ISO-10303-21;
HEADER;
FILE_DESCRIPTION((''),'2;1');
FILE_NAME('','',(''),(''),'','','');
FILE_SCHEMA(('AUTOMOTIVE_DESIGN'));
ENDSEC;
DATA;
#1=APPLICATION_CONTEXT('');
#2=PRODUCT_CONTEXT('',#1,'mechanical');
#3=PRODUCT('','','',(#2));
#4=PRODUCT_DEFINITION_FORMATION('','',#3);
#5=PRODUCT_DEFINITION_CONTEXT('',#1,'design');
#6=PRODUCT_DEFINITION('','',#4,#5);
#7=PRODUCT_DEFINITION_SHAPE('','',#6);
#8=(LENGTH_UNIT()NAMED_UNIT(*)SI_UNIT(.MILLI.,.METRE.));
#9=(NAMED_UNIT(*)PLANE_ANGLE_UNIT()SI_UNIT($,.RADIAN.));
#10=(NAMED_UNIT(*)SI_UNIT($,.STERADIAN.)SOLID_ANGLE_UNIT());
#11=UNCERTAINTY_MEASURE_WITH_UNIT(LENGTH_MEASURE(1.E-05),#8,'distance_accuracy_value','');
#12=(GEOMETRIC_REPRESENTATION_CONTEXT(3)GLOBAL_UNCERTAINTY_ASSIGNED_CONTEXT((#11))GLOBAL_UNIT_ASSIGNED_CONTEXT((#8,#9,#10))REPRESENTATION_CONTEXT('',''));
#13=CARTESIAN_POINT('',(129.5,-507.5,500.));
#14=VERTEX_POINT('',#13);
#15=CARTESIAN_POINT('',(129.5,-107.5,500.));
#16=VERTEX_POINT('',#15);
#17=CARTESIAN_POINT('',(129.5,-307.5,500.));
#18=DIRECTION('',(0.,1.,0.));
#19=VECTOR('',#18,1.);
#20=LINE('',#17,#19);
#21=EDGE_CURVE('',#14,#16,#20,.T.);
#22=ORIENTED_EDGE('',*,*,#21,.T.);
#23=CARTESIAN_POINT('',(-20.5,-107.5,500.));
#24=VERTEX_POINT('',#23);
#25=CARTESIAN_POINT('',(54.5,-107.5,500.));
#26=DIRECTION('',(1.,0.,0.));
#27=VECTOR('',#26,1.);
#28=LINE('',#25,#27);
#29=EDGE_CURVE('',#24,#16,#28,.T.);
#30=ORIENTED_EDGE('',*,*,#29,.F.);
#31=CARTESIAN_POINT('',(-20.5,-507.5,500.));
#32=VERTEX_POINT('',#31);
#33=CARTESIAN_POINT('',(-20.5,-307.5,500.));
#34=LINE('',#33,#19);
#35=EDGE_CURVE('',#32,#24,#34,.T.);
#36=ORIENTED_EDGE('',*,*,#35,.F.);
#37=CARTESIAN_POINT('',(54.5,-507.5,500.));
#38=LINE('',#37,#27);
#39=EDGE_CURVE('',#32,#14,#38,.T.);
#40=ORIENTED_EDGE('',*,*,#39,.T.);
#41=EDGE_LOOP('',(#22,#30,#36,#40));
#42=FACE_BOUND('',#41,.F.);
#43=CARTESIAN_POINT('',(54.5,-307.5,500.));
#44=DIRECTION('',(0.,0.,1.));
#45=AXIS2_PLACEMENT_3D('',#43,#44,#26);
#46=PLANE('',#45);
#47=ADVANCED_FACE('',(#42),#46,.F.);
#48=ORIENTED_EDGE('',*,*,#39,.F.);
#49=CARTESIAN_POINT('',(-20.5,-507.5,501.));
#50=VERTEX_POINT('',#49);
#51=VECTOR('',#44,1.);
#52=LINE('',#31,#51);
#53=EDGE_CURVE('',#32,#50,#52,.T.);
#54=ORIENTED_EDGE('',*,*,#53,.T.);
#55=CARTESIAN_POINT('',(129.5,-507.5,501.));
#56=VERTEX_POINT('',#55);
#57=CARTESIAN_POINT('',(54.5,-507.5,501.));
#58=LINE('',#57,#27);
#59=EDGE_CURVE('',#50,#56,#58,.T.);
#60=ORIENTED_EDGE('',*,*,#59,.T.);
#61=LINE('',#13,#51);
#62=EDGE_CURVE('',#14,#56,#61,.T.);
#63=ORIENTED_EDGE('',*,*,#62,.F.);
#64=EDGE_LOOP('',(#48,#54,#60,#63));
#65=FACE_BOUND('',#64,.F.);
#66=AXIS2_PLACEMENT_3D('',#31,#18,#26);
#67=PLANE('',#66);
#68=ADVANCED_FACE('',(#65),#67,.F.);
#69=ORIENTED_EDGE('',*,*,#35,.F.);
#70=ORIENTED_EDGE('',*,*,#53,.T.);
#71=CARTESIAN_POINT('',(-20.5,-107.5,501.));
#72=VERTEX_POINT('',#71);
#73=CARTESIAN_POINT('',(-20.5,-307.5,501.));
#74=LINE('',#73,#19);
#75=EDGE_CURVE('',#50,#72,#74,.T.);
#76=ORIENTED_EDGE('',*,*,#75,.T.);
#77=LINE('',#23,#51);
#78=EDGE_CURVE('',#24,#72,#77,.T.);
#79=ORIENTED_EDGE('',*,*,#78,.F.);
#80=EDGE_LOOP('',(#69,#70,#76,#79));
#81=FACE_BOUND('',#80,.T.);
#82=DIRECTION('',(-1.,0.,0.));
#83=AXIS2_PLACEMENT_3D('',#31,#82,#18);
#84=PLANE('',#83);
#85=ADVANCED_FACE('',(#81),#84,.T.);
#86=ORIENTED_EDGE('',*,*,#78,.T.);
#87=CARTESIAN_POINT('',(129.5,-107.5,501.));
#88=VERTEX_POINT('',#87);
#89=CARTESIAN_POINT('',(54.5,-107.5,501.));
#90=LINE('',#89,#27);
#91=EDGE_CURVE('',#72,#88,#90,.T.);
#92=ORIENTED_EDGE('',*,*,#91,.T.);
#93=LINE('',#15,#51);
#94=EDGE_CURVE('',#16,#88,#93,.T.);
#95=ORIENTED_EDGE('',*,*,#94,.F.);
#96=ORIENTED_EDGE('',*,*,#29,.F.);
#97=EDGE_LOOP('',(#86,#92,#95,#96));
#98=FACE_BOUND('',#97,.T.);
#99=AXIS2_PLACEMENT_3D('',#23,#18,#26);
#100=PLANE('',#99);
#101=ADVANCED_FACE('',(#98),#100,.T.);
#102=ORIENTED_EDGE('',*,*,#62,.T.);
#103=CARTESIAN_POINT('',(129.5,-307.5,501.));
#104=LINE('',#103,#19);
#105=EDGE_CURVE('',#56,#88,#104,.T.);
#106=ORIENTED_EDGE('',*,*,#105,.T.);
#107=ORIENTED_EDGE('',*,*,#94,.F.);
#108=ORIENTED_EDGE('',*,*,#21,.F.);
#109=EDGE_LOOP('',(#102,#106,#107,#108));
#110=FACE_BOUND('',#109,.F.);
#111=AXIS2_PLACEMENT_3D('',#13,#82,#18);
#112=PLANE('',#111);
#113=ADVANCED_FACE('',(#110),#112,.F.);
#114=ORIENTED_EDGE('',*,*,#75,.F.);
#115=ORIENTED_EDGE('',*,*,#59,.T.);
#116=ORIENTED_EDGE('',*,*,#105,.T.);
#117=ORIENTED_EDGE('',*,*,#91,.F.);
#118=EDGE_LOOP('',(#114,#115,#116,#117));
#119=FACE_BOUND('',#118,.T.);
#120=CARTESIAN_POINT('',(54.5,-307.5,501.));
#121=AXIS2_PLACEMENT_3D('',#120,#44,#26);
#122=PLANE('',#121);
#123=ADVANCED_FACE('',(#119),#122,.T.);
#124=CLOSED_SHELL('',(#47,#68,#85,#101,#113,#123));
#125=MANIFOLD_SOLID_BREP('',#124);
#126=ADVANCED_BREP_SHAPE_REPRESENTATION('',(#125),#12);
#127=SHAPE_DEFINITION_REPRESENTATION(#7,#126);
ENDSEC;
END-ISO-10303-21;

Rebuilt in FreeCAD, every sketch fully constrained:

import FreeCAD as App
import Part
import Sketcher

V = App.Vector
Q = App.Units.Quantity

doc = App.newDocument("Part")
body = doc.addObject("PartDesign::Body", "Body")

# Sketch on XY plane
sketch1 = body.newObject("Sketcher::SketchObject", "Sketch")
sketch1.AttachmentSupport = (doc.getObject("XY_Plane"), [""])
sketch1.MapMode = "FlatFace"
sketch1.addGeometry([
    Part.LineSegment(V(0, 400, 0), V(0, 0, 0)),
    Part.LineSegment(V(0, 0, 0), V(150, 0, 0)),
    Part.LineSegment(V(150, 0, 0), V(150, 400, 0)),
    Part.LineSegment(V(150, 400, 0), V(0, 400, 0)),
], False)
sketch1.addConstraint([
    Sketcher.Constraint("Coincident", 0, 2, 1, 1),
    Sketcher.Constraint("Coincident", 1, 2, 2, 1),
    Sketcher.Constraint("Coincident", 2, 2, 3, 1),
    Sketcher.Constraint("Coincident", 3, 2, 0, 1),
    Sketcher.Constraint("Vertical", 0),
    Sketcher.Constraint("Horizontal", 1),
    Sketcher.Constraint("Vertical", 2),
    Sketcher.Constraint("Horizontal", 3),
    Sketcher.Constraint("Coincident", 0, 2, -1, 1),
    Sketcher.Constraint("DistanceX", 1, 1, 1, 2, Q("150 mm")),
    Sketcher.Constraint("DistanceY", 0, 2, 0, 1, Q("400 mm")),
])
pad1 = body.newObject("PartDesign::Pad", "Pad")
pad1.Profile = sketch1
pad1.Length = 1
body2 = doc.addObject("PartDesign::Body", "Body001")
doc.recompute()

body.Placement = App.Placement(V(-18, -511, 500), App.Rotation(V(0, 0, 1), 0))
boolean = body2.newObject("PartDesign::Boolean", "Boolean")
boolean.Type = "Fuse"
boolean.addObjects([body])
body3 = doc.addObject("PartDesign::Body", "Body002")
doc.recompute()

body2.Placement = App.Placement(V(-2.5, 3.5, 0), App.Rotation(V(0, 0, 1), 0))
boolean2 = body3.newObject("PartDesign::Boolean", "Boolean001")
boolean2.Type = "Fuse"
boolean2.addObjects([body2])

doc.recompute()
